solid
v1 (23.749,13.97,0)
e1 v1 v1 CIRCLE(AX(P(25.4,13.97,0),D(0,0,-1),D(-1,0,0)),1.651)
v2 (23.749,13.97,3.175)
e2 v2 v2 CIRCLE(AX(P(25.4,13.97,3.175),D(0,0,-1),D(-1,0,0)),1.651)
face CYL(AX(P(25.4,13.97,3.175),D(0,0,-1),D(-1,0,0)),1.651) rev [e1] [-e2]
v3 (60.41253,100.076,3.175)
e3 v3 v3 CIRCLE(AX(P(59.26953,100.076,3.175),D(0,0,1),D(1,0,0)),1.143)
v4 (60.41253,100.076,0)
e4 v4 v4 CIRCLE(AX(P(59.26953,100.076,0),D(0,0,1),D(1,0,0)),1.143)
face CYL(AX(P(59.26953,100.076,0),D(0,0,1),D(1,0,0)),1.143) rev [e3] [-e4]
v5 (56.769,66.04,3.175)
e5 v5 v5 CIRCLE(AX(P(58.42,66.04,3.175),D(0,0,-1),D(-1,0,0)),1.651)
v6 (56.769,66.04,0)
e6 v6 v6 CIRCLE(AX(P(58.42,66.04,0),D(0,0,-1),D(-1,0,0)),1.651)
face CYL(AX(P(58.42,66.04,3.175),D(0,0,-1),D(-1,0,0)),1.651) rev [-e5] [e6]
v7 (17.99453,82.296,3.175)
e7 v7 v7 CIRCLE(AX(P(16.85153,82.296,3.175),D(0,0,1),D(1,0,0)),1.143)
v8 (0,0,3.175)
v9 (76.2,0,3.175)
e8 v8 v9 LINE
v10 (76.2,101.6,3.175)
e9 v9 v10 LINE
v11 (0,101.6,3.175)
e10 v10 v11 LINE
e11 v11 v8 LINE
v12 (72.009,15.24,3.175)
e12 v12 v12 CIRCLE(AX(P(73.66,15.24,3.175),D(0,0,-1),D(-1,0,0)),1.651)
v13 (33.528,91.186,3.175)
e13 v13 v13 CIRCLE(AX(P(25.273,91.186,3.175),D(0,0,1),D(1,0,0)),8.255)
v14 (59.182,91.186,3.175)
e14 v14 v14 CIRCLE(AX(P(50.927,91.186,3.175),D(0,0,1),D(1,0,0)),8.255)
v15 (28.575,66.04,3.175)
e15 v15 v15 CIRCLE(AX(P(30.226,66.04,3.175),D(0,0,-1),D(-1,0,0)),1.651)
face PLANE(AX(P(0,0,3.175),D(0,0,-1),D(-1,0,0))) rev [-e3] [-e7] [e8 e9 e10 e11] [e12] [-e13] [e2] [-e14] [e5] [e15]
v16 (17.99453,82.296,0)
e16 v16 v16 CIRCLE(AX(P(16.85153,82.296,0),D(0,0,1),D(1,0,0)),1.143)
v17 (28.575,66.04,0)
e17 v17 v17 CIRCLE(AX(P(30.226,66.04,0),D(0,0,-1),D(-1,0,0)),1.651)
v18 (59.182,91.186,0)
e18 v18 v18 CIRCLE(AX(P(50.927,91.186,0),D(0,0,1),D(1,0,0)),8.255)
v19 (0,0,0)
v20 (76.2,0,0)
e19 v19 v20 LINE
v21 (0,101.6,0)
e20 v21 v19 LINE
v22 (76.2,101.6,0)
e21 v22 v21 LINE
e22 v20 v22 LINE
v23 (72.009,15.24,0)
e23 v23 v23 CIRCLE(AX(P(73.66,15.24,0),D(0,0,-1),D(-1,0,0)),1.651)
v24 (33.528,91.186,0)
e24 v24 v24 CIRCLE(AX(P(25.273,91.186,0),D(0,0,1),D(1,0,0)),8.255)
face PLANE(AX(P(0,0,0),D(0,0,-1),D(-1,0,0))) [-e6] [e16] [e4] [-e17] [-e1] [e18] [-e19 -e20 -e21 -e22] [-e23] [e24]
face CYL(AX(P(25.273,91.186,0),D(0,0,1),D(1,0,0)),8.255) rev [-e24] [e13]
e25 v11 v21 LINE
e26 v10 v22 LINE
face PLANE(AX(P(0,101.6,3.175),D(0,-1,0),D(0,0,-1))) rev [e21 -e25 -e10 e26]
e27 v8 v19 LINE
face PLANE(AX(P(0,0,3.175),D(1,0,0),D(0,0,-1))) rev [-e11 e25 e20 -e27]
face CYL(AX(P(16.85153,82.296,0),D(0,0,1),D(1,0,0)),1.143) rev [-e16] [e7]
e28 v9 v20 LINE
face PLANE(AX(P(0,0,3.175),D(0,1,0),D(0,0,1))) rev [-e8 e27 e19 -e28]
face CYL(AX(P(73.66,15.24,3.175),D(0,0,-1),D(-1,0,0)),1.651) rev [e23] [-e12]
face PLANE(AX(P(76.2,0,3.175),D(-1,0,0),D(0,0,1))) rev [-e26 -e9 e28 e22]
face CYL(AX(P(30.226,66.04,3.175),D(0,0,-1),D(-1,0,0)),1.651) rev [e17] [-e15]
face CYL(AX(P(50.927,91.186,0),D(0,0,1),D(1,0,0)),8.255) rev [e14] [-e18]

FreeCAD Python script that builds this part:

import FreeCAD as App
import Part
import Sketcher
from FreeCAD import Vector
Q = App.Units.Quantity

doc = App.newDocument("Part")
body = doc.addObject("PartDesign::Body", "Body")

sketch1 = doc.addObject("Sketcher::SketchObject", "Sketch")
body.addObject(sketch1)
sketch1.AttachmentSupport = (doc.XY_Plane, [""])
sketch1.MapMode = "FlatFace"
sketch1.addGeometry([
    Part.LineSegment(Vector(0, 101.6, 0), Vector(0, 0, 0)),
    Part.LineSegment(Vector(0, 0, 0), Vector(76.2, 0, 0)),
    Part.LineSegment(Vector(76.2, 0, 0), Vector(76.2, 101.6, 0)),
    Part.LineSegment(Vector(76.2, 101.6, 0), Vector(0, 101.6, 0)),
], False)
sketch1.addConstraint([
    Sketcher.Constraint("Coincident", 0, 2, 1, 1),
    Sketcher.Constraint("Coincident", 1, 2, 2, 1),
    Sketcher.Constraint("Coincident", 2, 2, 3, 1),
    Sketcher.Constraint("Coincident", 3, 2, 0, 1),
    Sketcher.Constraint("Vertical", 0),
    Sketcher.Constraint("Horizontal", 1),
    Sketcher.Constraint("Vertical", 2),
    Sketcher.Constraint("Horizontal", 3),
    Sketcher.Constraint("Coincident", 0, 2, -1, 1),
    Sketcher.Constraint("DistanceX", 1, 1, 1, 2, Q("3 in")),
    Sketcher.Constraint("DistanceY", 0, 2, 0, 1, Q("4 in")),
])
pad1 = doc.addObject("PartDesign::Pad", "Pad")
body.addObject(pad1)
pad1.Profile = sketch1
pad1.Length = Q("0.125 in")

sketch2 = doc.addObject("Sketcher::SketchObject", "Sketch001")
body.addObject(sketch2)
sketch2.AttachmentSupport = (doc.XY_Plane, [""])
sketch2.MapMode = "FlatFace"
sketch2.AttachmentOffset = App.Placement(Vector(0, 0, 0.125 * 25.4), App.Rotation())
sketch2.addGeometry([
    Part.Circle(Vector(25.273, 91.186, 0), Vector(0, 0, 1), 8.255),
    Part.Circle(Vector(50.927, 91.186, 0), Vector(0, 0, 1), 8.255),
    Part.Circle(Vector(59.26953, 100.076, 0), Vector(0, 0, 1), 1.143),
    Part.Circle(Vector(16.85153, 82.296, 0), Vector(0, 0, 1), 1.143),
], False)
sketch2.addConstraint([
    Sketcher.Constraint("Equal", 0, 1),
    Sketcher.Constraint("Equal", 2, 3),
    Sketcher.Constraint("Horizontal", 0, 3, 1, 3),
    Sketcher.Constraint("Diameter", 0, Q("0.65 in")),
    Sketcher.Constraint("Diameter", 2, Q("0.09 in")),
    Sketcher.Constraint("DistanceY", 3, 3, 2, 3, Q("0.7 in")),
    Sketcher.Constraint("DistanceY", -1, 1, 0, 3, Q("3.59 in")),
    Sketcher.Constraint("DistanceY", -1, 1, 2, 3, Q("3.94 in")),
    Sketcher.Constraint("DistanceX", 0, 3, 1, 3, Q("1.01 in")),
    Sketcher.Constraint("DistanceX", 3, 3, 2, 3, Q("1.67 in")),
    Sketcher.Constraint("DistanceX", -1, 1, 0, 3, Q("0.995 in")),
    Sketcher.Constraint("DistanceX", -1, 1, 2, 3, Q("59.26953 mm")),
])
pocket1 = doc.addObject("PartDesign::Pocket", "Pocket")
body.addObject(pocket1)
pocket1.Profile = sketch2
pocket1.Length = Q("0.125 in")

sketch3 = doc.addObject("Sketcher::SketchObject", "Sketch002")
body.addObject(sketch3)
sketch3.AttachmentSupport = (doc.XY_Plane, [""])
sketch3.MapMode = "FlatFace"
sketch3.addGeometry([
    Part.Circle(Vector(73.66, 15.24, 0), Vector(0, 0, 1), 1.651),
    Part.Circle(Vector(25.4, 13.97, 0), Vector(0, 0, 1), 1.651),
    Part.Circle(Vector(30.226, 66.04, 0), Vector(0, 0, 1), 1.651),
    Part.Circle(Vector(58.42, 66.04, 0), Vector(0, 0, 1), 1.651),
], False)
sketch3.addConstraint([
    Sketcher.Constraint("Equal", 0, 1),
    Sketcher.Constraint("Equal", 1, 2),
    Sketcher.Constraint("Equal", 2, 3),
    Sketcher.Constraint("Horizontal", 2, 3, 3, 3),
    Sketcher.Constraint("Diameter", 0, Q("0.13 in")),
    Sketcher.Constraint("DistanceX", -1, 1, 1, 3, Q("1 in")),
    Sketcher.Constraint("DistanceY", 0, 3, 2, 3, Q("2 in")),
    Sketcher.Constraint("DistanceX", -1, 1, 0, 3, Q("2.9 in")),
    Sketcher.Constraint("DistanceY", -1, 1, 0, 3, Q("0.6 in")),
    Sketcher.Constraint("DistanceX", -1, 1, 3, 3, Q("2.3 in")),
    Sketcher.Constraint("DistanceY", -1, 1, 1, 3, Q("0.55 in")),
    Sketcher.Constraint("DistanceX", -1, 1, 2, 3, Q("1.19 in")),
])
pocket2 = doc.addObject("PartDesign::Pocket", "Pocket001")
body.addObject(pocket2)
pocket2.Profile = sketch3
pocket2.Length = Q("0.125 in")
pocket2.Reversed = True

doc.recompute()
